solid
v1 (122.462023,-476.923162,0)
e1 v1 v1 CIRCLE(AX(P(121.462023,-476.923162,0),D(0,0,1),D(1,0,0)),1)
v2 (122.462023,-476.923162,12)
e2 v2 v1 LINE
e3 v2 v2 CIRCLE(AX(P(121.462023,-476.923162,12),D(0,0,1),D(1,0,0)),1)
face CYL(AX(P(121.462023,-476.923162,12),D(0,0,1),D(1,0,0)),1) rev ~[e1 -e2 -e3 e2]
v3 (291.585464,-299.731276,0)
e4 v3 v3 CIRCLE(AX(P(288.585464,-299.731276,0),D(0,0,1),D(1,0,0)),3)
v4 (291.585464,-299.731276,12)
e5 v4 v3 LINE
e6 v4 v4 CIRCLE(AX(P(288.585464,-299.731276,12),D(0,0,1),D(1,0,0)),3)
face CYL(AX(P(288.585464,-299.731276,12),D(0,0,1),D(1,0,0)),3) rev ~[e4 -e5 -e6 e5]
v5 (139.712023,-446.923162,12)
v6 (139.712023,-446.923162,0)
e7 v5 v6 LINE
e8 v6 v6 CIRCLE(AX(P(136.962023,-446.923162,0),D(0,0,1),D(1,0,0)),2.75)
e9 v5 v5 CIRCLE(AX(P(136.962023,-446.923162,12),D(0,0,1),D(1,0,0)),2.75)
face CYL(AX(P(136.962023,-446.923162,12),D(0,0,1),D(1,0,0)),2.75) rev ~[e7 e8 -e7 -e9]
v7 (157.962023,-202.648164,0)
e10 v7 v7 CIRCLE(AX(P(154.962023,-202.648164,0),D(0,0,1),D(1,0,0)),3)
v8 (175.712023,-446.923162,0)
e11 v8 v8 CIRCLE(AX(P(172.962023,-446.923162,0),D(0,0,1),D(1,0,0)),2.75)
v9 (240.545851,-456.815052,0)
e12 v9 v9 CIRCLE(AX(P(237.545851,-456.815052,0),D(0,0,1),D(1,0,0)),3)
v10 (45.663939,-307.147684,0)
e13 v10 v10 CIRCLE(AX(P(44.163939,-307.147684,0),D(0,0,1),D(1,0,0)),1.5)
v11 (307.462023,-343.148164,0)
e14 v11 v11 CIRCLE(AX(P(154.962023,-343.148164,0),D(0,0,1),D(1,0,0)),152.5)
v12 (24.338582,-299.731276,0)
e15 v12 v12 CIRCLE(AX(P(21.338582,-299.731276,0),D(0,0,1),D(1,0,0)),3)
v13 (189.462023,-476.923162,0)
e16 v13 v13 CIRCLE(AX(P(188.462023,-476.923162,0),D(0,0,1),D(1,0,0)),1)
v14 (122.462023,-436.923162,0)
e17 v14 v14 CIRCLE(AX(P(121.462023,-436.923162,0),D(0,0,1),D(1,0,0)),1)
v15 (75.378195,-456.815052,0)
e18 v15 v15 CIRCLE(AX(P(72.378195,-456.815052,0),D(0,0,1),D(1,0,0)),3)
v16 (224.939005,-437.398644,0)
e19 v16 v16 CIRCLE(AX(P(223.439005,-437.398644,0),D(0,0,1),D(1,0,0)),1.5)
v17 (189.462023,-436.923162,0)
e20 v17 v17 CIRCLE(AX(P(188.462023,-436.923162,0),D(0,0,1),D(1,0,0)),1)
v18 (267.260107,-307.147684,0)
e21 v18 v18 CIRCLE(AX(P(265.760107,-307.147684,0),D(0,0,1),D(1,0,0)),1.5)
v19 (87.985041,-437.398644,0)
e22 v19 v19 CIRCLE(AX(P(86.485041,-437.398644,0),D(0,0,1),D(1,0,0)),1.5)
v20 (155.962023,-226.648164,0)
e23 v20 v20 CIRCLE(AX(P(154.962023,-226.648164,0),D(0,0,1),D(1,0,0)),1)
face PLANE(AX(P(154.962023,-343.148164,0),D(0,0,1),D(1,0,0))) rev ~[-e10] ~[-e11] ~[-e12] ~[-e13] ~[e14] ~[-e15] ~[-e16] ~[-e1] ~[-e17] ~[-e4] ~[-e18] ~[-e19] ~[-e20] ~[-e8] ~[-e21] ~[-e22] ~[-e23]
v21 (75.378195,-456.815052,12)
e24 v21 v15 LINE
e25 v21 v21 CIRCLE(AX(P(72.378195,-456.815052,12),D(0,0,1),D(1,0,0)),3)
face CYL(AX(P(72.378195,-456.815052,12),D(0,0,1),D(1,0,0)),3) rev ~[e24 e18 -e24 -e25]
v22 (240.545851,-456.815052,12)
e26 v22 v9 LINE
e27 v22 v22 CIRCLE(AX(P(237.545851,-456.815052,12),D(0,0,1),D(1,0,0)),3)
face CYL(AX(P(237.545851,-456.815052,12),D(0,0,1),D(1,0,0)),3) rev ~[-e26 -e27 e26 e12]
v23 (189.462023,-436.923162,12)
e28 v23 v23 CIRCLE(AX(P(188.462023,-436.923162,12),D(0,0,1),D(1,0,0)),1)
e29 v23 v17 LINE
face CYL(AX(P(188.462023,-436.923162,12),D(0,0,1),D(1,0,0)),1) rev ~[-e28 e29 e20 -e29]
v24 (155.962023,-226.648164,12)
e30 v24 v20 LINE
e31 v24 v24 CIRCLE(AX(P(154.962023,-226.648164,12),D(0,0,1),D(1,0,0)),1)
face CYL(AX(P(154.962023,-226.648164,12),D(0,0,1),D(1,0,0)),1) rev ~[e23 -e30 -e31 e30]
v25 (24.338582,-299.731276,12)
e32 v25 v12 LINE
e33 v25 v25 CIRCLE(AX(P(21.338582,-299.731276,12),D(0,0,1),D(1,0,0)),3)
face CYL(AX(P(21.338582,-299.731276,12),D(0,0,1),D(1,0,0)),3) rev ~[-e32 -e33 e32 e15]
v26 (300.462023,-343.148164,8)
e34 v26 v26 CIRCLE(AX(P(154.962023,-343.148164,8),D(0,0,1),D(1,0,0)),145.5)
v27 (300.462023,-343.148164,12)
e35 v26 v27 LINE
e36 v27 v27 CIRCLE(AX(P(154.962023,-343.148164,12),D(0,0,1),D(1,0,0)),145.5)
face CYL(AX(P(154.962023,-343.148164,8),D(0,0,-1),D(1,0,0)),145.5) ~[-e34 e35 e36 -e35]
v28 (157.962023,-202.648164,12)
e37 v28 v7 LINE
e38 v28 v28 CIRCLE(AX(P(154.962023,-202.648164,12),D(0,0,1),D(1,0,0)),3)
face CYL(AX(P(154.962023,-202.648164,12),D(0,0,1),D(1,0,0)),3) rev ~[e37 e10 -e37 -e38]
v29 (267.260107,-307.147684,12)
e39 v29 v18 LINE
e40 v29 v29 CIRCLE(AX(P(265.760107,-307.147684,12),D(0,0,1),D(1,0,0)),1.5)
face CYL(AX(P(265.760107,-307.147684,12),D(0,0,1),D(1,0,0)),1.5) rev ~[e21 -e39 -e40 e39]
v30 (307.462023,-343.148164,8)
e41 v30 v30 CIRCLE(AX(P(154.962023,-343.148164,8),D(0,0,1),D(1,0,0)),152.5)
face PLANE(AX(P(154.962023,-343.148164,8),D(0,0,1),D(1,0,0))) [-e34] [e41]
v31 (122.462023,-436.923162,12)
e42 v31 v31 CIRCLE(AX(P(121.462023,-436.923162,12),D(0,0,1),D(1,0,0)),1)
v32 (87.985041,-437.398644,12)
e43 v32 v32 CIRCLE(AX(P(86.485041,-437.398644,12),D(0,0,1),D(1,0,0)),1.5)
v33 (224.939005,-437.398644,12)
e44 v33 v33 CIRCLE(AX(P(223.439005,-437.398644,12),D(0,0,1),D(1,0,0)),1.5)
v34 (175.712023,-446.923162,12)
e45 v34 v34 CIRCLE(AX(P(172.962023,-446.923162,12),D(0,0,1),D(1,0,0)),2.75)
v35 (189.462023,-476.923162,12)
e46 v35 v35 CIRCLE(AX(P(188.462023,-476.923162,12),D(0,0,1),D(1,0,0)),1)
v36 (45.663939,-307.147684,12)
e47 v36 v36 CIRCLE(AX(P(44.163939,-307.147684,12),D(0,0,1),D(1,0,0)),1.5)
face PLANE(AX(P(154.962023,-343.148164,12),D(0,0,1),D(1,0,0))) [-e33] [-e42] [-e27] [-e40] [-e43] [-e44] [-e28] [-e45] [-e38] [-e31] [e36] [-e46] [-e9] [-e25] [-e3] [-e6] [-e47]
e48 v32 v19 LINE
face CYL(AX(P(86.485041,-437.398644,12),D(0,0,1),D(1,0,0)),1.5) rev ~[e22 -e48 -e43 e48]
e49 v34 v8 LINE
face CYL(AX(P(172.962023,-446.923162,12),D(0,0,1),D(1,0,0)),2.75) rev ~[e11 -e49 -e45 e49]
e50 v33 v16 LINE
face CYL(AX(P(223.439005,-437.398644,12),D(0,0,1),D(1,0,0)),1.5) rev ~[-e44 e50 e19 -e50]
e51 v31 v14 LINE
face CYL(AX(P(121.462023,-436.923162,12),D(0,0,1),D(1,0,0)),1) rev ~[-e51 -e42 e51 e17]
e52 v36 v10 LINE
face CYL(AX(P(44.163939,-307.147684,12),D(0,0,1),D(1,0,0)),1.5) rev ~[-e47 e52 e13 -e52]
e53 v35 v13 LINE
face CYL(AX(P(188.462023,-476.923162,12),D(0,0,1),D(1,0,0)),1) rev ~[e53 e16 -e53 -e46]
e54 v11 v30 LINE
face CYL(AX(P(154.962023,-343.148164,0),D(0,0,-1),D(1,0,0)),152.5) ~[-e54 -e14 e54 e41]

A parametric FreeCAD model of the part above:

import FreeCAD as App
import Part
import Sketcher
from FreeCAD import Vector
Q = App.Units.Quantity

doc = App.newDocument("Part")
body = doc.addObject("PartDesign::Body", "Body")

# Sketch on XY plane
sketch1 = body.newObject("Sketcher::SketchObject", "Sketch")
sketch1.AttachmentSupport = (doc.getObject("XY_Plane"), [""])
sketch1.MapMode = "FlatFace"
sketch1.addGeometry(Part.Circle(Vector(0.142028, -323.737579, 0), Vector(0, 0, 1), 152.5), False)
sketch1.addConstraint([
    Sketcher.Constraint("Diameter", 0, Q("305 mm")),
    Sketcher.Constraint("DistanceY", 0, 3, -1, 1, Q("323.737579 mm")),
    Sketcher.Constraint("DistanceX", -1, 1, 0, 3, Q("0.142028 mm")),
])
pad1 = body.newObject("PartDesign::Pad", "Pad")
pad1.Profile = sketch1
pad1.Length = 8

# Sketch on XY plane
sketch2 = body.newObject("Sketcher::SketchObject", "Sketch001")
sketch2.AttachmentSupport = (doc.getObject("XY_Plane"), [""])
sketch2.MapMode = "FlatFace"
sketch2.AttachmentOffset = App.Placement(Vector(0, 0, 8), App.Rotation())
sketch2.addGeometry(Part.Circle(Vector(0.142028, -323.737579, 0), Vector(0, 0, 1), 145.5), False)
sketch2.addConstraint([
    Sketcher.Constraint("Diameter", 0, Q("291 mm")),
    Sketcher.Constraint("DistanceY", 0, 3, -1, 1, Q("323.737579 mm")),
    Sketcher.Constraint("DistanceX", -1, 1, 0, 3, Q("0.142028 mm")),
])
pad2 = body.newObject("PartDesign::Pad", "Pad001")
pad2.Profile = sketch2
pad2.Length = 4

# Sketch on XY plane
sketch3 = body.newObject("Sketcher::SketchObject", "Sketch002")
sketch3.AttachmentSupport = (doc.getObject("XY_Plane"), [""])
sketch3.MapMode = "FlatFace"
sketch3.AttachmentOffset = App.Placement(Vector(0, 0, 12), App.Rotation())
sketch3.addGeometry([
    Part.Circle(Vector(0.142028, -183.237579, 0), Vector(0, 0, 1), 3),  # 0
    Part.Circle(Vector(133.765469, -280.320691, 0), Vector(0, 0, 1), 3),  # 1
    Part.Circle(Vector(110.940112, -287.737099, 0), Vector(0, 0, 1), 1.5),  # 2
    Part.Circle(Vector(-133.481413, -280.320691, 0), Vector(0, 0, 1), 3),  # 3
    Part.Circle(Vector(-110.656056, -287.737099, 0), Vector(0, 0, 1), 1.5),  # 4
    Part.Circle(Vector(-82.4418, -437.404467, 0), Vector(0, 0, 1), 3),  # 5
    Part.Circle(Vector(-68.334954, -417.988059, 0), Vector(0, 0, 1), 1.5),  # 6
    Part.Circle(Vector(82.725856, -437.404467, 0), Vector(0, 0, 1), 3),  # 7
    Part.Circle(Vector(68.61901, -417.988059, 0), Vector(0, 0, 1), 1.5),  # 8
    Part.Circle(Vector(-33.357972, -417.512577, 0), Vector(0, 0, 1), 1),  # 9
    Part.Circle(Vector(-33.357972, -457.512577, 0), Vector(0, 0, 1), 1),  # 10
    Part.Circle(Vector(33.642028, -457.512577, 0), Vector(0, 0, 1), 1),  # 11
    Part.Circle(Vector(33.642028, -417.512577, 0), Vector(0, 0, 1), 1),  # 12
    Part.Circle(Vector(0.142028, -207.237579, 0), Vector(0, 0, 1), 1),  # 13
    Part.Circle(Vector(-17.857972, -427.512577, 0), Vector(0, 0, 1), 2.75),  # 14
    Part.Circle(Vector(18.142028, -427.512577, 0), Vector(0, 0, 1), 2.75),  # 15
], False)
sketch3.addConstraint([
    Sketcher.Constraint("Equal", 0, 1),
    Sketcher.Constraint("Equal", 1, 3),
    Sketcher.Constraint("Equal", 2, 4),
    Sketcher.Constraint("Equal", 3, 5),
    Sketcher.Constraint("Equal", 4, 6),
    Sketcher.Constraint("Equal", 5, 7),
    Sketcher.Constraint("Equal", 6, 8),
    Sketcher.Constraint("Equal", 9, 10),
    Sketcher.Constraint("Equal", 10, 11),
    Sketcher.Constraint("Equal", 11, 12),
    Sketcher.Constraint("Equal", 12, 13),
    Sketcher.Constraint("Equal", 14, 15),
    Sketcher.Constraint("Horizontal", 1, 3, 3, 3),
    Sketcher.Constraint("Horizontal", 2, 3, 4, 3),
    Sketcher.Constraint("Horizontal", 5, 3, 7, 3),
    Sketcher.Constraint("Horizontal", 6, 3, 8, 3),
    Sketcher.Constraint("Horizontal", 10, 3, 11, 3),
    Sketcher.Constraint("Horizontal", 9, 3, 12, 3),
    Sketcher.Constraint("Horizontal", 14, 3, 15, 3),
    Sketcher.Constraint("Vertical", 9, 3, 10, 3),
    Sketcher.Constraint("Vertical", 11, 3, 12, 3),
    Sketcher.Constraint("Vertical", 0, 3, 13, 3),
    Sketcher.Constraint("Diameter", 0, Q("6 mm")),
    Sketcher.Constraint("Diameter", 2, Q("3 mm")),
    Sketcher.Constraint("Diameter", 9, Q("2 mm")),
    Sketcher.Constraint("Diameter", 14, Q("5.5 mm")),
    Sketcher.Constraint("DistanceY", 10, 3, 9, 3, Q("40 mm")),
    Sketcher.Constraint("DistanceX", 10, 3, 11, 3, Q("67 mm")),
    Sketcher.Constraint("DistanceY", 13, 3, 0, 3, Q("24 mm")),
    Sketcher.Constraint("DistanceY", 14, 3, 9, 3, Q("10 mm")),
    Sketcher.Constraint("DistanceX", 14, 3, 15, 3, Q("36 mm")),
    Sketcher.Constraint("DistanceX", 9, 3, 14, 3, Q("15.5 mm")),
    Sketcher.Constraint("DistanceY", 2, 3, -1, 1, Q("287.737099 mm")),
    Sketcher.Constraint("DistanceX", 5, 3, -1, 1, Q("82.4418 mm")),
    Sketcher.Constraint("DistanceX", 8, 3, 2, 3, Q("42.321102 mm")),
    Sketcher.Constraint("DistanceY", 0, 3, -1, 1, Q("183.237579 mm")),
    Sketcher.Constraint("DistanceX", -1, 1, 1, 3, Q("133.765469 mm")),
    Sketcher.Constraint("DistanceY", 1, 3, -1, 1, Q("280.320691 mm")),
    Sketcher.Constraint("DistanceX", -1, 1, 2, 3, Q("110.940112 mm")),
    Sketcher.Constraint("DistanceY", 6, 3, -1, 1, Q("417.988059 mm")),
    Sketcher.Constraint("DistanceX", 9, 3, -1, 1, Q("33.357972 mm")),
    Sketcher.Constraint("DistanceX", 0, 3, 1, 3, Q("133.623441 mm")),
    Sketcher.Constraint("DistanceX", 3, 3, 0, 3, Q("133.623441 mm")),
    Sketcher.Constraint("DistanceX", 4, 3, 2, 3, Q("221.596168 mm")),
    Sketcher.Constraint("DistanceY", 5, 3, 4, 3, Q("149.667368 mm")),
    Sketcher.Constraint("DistanceX", 3, 3, 6, 3, Q("65.146459 mm")),
    Sketcher.Constraint("DistanceX", 6, 3, 7, 3, Q("151.06081 mm")),
    Sketcher.Constraint("DistanceY", 6, 3, 9, 3, Q("0.475482 mm")),
])
pocket1 = body.newObject("PartDesign::Pocket", "Pocket")
pocket1.Profile = sketch3
pocket1.Type = "ThroughAll"
body2 = doc.addObject("PartDesign::Body", "Body001")
doc.recompute()

body.Placement = App.Placement(Vector(154.819995, -19.410585, 0), App.Rotation(Vector(0, 0, 1), 0))
boolean = body2.newObject("PartDesign::Boolean", "Boolean")
boolean.Type = "Fuse"
boolean.addObjects([body])

doc.recompute()
